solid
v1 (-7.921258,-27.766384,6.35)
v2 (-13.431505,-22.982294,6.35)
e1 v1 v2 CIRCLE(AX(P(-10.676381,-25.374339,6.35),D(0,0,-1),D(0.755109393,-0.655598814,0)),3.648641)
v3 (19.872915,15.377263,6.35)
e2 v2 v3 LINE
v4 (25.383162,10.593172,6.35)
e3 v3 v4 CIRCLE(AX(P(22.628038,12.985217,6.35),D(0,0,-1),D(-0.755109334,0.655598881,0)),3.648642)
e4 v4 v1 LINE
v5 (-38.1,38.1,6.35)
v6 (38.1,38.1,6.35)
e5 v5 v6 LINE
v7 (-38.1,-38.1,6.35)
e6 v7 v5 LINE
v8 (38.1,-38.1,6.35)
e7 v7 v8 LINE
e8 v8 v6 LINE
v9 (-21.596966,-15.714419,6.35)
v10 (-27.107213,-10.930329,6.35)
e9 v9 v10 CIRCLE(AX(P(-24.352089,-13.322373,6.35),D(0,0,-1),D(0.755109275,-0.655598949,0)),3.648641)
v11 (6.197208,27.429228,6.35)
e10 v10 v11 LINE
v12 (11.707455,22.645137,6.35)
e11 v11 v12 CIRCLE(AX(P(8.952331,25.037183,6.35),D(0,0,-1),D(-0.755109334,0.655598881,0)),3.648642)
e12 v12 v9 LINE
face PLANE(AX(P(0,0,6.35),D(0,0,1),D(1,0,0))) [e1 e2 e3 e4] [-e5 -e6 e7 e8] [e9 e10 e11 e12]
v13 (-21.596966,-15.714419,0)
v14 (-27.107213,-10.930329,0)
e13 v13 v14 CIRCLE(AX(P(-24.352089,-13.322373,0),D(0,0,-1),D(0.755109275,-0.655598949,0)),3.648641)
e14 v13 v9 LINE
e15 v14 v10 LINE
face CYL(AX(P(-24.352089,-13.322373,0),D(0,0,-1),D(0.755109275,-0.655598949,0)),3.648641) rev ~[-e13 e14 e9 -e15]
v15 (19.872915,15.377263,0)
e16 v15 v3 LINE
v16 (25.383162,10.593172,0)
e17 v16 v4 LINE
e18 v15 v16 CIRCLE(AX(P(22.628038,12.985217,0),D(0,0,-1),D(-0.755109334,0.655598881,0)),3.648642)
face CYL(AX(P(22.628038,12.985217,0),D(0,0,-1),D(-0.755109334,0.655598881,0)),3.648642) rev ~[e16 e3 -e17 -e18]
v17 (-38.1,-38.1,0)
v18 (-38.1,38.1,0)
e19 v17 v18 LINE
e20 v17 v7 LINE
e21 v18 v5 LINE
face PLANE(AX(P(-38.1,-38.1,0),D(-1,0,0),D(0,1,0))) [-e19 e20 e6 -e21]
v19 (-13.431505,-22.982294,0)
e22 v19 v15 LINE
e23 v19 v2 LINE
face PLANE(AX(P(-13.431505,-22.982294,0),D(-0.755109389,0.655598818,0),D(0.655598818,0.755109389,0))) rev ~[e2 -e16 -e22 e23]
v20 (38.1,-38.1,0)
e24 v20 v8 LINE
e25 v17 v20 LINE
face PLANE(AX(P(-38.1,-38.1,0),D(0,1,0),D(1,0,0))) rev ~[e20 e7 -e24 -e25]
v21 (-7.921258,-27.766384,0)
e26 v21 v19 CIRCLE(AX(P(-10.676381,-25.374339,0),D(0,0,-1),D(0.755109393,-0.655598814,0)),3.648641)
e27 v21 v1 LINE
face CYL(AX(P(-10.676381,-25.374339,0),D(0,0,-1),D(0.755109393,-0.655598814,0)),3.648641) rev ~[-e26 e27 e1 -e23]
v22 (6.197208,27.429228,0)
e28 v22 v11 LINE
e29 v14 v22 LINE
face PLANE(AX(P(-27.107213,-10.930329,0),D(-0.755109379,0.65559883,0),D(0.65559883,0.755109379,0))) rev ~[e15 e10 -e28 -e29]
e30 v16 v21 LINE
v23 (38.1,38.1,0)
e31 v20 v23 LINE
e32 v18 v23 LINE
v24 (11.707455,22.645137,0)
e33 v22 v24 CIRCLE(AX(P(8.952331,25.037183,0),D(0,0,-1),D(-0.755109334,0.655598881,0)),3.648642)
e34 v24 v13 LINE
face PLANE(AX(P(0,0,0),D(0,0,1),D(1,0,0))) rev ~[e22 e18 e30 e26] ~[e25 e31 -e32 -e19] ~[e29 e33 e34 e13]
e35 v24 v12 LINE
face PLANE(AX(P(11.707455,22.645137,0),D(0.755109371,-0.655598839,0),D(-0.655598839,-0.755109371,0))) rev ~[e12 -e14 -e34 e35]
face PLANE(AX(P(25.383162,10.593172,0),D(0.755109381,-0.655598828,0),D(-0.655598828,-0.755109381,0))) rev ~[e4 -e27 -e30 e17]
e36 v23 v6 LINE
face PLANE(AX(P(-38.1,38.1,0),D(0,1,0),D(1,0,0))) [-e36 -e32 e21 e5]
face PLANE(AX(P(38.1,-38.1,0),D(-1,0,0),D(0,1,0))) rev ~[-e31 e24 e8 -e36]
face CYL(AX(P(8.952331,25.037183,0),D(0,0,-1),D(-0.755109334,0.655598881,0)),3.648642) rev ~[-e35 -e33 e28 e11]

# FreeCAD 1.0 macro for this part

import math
import FreeCAD as App
import Part
import Sketcher

V = App.Vector
Q = App.Units.Quantity

doc = App.newDocument("Part")
params = doc.addObject("Spreadsheet::Sheet", "Params")
for row, (alias, value) in enumerate([
    ("sketch1_width", "3 in"),
    ("sketch1_length", "2 in"),
    ("pad1_length", "0.25 in"),
], start=1):
    params.set(f"A{row}", alias)
    params.set(f"B{row}", "=" + value)
    params.setAlias(f"B{row}", alias)

body = doc.addObject("PartDesign::Body", "Body")

sketch1 = body.newObject("Sketcher::SketchObject", "Sketch")
sketch1.AttachmentSupport = (doc.getObject("XY_Plane"), [""])
sketch1.MapMode = "FlatFace"
sketch1.addGeometry([
    Part.LineSegment(V(-38.1, 38.1, 0), V(-38.1, -38.1, 0)),
    Part.LineSegment(V(-38.1, -38.1, 0), V(38.1, -38.1, 0)),
    Part.LineSegment(V(38.1, -38.1, 0), V(38.1, 38.1, 0)),
    Part.LineSegment(V(38.1, 38.1, 0), V(-38.1, 38.1, 0)),
    Part.LineSegment(V(25.4, 10.6, 0), V(-7.9, -27.8, 0)),
    Part.ArcOfCircle(Part.Circle(V(-10.7, -25.4, 0), V(0, 0, 1), 3.6), math.radians(139), math.radians(319)),
    Part.LineSegment(V(-13.4, -23, 0), V(19.9, 15.4, 0)),
    Part.ArcOfCircle(Part.Circle(V(22.6, 13, 0), V(0, 0, 1), 3.6), math.radians(-41), math.radians(139)),
    Part.LineSegment(V(11.7, 22.6, 0), V(-21.6, -15.7, 0)),
    Part.ArcOfCircle(Part.Circle(V(-24.4, -13.3, 0), V(0, 0, 1), 3.6), math.radians(139), math.radians(319)),
    Part.LineSegment(V(-27.1, -10.9, 0), V(6.2, 27.4, 0)),
    Part.ArcOfCircle(Part.Circle(V(9, 25, 0), V(0, 0, 1), 3.6), math.radians(-41), math.radians(139)),
], False)
sketch1.addConstraint([
    Sketcher.Constraint("Coincident", 0, 2, 1, 1),
    Sketcher.Constraint("Coincident", 1, 2, 2, 1),
    Sketcher.Constraint("Coincident", 2, 2, 3, 1),
    Sketcher.Constraint("Coincident", 3, 2, 0, 1),
    Sketcher.Constraint("Tangent", 4, 2, 5, 2),
    Sketcher.Constraint("Tangent", 5, 1, 6, 1),
    Sketcher.Constraint("Tangent", 6, 2, 7, 2),
    Sketcher.Constraint("Tangent", 7, 1, 4, 1),
    Sketcher.Constraint("Tangent", 8, 2, 9, 2),
    Sketcher.Constraint("Tangent", 9, 1, 10, 1),
    Sketcher.Constraint("Tangent", 10, 2, 11, 2),
    Sketcher.Constraint("Tangent", 11, 1, 8, 1),
    Sketcher.Constraint("Vertical", 0),
    Sketcher.Constraint("Horizontal", 1),
    Sketcher.Constraint("Vertical", 2),
    Sketcher.Constraint("Horizontal", 3),
    Sketcher.Constraint("Equal", 5, 7),
    Sketcher.Constraint("Equal", 7, 9),
    Sketcher.Constraint("Equal", 9, 11),
    Sketcher.Constraint("Symmetric", 0, 2, 2, 2, -1, 1),
    Sketcher.Constraint("Parallel", 6, 8),
    Sketcher.Constraint("Equal", 3, 0),
    Sketcher.Constraint("Equal", 6, 8),
    Sketcher.Constraint("DistanceX", 1, 1, 1, 2, Q("3 in")),
    Sketcher.Constraint("Distance", 4, Q("2 in")),
    Sketcher.Constraint("Radius", 5, Q("3.648641 mm")),
    Sketcher.Constraint("DistanceY", 4, 2, 7, 3, Q("40.751601 mm")),
    Sketcher.Constraint("DistanceX", 5, 3, -1, 1, Q("10.676381 mm")),
    Sketcher.Constraint("DistanceY", 5, 3, -1, 1, Q("25.374339 mm")),
    Sketcher.Constraint("DistanceX", 9, 3, -1, 1, Q("24.352089 mm")),
    Sketcher.Constraint("DistanceY", 8, 2, -1, 1, Q("15.714419 mm")),
])
sketch1.setExpression("Constraints[23]", "Params.sketch1_width")
sketch1.setExpression("Constraints[24]", "Params.sketch1_length")
pad1 = body.newObject("PartDesign::Pad", "Pad")
pad1.Profile = sketch1
pad1.setExpression("Length", "Params.pad1_length")

doc.recompute()
